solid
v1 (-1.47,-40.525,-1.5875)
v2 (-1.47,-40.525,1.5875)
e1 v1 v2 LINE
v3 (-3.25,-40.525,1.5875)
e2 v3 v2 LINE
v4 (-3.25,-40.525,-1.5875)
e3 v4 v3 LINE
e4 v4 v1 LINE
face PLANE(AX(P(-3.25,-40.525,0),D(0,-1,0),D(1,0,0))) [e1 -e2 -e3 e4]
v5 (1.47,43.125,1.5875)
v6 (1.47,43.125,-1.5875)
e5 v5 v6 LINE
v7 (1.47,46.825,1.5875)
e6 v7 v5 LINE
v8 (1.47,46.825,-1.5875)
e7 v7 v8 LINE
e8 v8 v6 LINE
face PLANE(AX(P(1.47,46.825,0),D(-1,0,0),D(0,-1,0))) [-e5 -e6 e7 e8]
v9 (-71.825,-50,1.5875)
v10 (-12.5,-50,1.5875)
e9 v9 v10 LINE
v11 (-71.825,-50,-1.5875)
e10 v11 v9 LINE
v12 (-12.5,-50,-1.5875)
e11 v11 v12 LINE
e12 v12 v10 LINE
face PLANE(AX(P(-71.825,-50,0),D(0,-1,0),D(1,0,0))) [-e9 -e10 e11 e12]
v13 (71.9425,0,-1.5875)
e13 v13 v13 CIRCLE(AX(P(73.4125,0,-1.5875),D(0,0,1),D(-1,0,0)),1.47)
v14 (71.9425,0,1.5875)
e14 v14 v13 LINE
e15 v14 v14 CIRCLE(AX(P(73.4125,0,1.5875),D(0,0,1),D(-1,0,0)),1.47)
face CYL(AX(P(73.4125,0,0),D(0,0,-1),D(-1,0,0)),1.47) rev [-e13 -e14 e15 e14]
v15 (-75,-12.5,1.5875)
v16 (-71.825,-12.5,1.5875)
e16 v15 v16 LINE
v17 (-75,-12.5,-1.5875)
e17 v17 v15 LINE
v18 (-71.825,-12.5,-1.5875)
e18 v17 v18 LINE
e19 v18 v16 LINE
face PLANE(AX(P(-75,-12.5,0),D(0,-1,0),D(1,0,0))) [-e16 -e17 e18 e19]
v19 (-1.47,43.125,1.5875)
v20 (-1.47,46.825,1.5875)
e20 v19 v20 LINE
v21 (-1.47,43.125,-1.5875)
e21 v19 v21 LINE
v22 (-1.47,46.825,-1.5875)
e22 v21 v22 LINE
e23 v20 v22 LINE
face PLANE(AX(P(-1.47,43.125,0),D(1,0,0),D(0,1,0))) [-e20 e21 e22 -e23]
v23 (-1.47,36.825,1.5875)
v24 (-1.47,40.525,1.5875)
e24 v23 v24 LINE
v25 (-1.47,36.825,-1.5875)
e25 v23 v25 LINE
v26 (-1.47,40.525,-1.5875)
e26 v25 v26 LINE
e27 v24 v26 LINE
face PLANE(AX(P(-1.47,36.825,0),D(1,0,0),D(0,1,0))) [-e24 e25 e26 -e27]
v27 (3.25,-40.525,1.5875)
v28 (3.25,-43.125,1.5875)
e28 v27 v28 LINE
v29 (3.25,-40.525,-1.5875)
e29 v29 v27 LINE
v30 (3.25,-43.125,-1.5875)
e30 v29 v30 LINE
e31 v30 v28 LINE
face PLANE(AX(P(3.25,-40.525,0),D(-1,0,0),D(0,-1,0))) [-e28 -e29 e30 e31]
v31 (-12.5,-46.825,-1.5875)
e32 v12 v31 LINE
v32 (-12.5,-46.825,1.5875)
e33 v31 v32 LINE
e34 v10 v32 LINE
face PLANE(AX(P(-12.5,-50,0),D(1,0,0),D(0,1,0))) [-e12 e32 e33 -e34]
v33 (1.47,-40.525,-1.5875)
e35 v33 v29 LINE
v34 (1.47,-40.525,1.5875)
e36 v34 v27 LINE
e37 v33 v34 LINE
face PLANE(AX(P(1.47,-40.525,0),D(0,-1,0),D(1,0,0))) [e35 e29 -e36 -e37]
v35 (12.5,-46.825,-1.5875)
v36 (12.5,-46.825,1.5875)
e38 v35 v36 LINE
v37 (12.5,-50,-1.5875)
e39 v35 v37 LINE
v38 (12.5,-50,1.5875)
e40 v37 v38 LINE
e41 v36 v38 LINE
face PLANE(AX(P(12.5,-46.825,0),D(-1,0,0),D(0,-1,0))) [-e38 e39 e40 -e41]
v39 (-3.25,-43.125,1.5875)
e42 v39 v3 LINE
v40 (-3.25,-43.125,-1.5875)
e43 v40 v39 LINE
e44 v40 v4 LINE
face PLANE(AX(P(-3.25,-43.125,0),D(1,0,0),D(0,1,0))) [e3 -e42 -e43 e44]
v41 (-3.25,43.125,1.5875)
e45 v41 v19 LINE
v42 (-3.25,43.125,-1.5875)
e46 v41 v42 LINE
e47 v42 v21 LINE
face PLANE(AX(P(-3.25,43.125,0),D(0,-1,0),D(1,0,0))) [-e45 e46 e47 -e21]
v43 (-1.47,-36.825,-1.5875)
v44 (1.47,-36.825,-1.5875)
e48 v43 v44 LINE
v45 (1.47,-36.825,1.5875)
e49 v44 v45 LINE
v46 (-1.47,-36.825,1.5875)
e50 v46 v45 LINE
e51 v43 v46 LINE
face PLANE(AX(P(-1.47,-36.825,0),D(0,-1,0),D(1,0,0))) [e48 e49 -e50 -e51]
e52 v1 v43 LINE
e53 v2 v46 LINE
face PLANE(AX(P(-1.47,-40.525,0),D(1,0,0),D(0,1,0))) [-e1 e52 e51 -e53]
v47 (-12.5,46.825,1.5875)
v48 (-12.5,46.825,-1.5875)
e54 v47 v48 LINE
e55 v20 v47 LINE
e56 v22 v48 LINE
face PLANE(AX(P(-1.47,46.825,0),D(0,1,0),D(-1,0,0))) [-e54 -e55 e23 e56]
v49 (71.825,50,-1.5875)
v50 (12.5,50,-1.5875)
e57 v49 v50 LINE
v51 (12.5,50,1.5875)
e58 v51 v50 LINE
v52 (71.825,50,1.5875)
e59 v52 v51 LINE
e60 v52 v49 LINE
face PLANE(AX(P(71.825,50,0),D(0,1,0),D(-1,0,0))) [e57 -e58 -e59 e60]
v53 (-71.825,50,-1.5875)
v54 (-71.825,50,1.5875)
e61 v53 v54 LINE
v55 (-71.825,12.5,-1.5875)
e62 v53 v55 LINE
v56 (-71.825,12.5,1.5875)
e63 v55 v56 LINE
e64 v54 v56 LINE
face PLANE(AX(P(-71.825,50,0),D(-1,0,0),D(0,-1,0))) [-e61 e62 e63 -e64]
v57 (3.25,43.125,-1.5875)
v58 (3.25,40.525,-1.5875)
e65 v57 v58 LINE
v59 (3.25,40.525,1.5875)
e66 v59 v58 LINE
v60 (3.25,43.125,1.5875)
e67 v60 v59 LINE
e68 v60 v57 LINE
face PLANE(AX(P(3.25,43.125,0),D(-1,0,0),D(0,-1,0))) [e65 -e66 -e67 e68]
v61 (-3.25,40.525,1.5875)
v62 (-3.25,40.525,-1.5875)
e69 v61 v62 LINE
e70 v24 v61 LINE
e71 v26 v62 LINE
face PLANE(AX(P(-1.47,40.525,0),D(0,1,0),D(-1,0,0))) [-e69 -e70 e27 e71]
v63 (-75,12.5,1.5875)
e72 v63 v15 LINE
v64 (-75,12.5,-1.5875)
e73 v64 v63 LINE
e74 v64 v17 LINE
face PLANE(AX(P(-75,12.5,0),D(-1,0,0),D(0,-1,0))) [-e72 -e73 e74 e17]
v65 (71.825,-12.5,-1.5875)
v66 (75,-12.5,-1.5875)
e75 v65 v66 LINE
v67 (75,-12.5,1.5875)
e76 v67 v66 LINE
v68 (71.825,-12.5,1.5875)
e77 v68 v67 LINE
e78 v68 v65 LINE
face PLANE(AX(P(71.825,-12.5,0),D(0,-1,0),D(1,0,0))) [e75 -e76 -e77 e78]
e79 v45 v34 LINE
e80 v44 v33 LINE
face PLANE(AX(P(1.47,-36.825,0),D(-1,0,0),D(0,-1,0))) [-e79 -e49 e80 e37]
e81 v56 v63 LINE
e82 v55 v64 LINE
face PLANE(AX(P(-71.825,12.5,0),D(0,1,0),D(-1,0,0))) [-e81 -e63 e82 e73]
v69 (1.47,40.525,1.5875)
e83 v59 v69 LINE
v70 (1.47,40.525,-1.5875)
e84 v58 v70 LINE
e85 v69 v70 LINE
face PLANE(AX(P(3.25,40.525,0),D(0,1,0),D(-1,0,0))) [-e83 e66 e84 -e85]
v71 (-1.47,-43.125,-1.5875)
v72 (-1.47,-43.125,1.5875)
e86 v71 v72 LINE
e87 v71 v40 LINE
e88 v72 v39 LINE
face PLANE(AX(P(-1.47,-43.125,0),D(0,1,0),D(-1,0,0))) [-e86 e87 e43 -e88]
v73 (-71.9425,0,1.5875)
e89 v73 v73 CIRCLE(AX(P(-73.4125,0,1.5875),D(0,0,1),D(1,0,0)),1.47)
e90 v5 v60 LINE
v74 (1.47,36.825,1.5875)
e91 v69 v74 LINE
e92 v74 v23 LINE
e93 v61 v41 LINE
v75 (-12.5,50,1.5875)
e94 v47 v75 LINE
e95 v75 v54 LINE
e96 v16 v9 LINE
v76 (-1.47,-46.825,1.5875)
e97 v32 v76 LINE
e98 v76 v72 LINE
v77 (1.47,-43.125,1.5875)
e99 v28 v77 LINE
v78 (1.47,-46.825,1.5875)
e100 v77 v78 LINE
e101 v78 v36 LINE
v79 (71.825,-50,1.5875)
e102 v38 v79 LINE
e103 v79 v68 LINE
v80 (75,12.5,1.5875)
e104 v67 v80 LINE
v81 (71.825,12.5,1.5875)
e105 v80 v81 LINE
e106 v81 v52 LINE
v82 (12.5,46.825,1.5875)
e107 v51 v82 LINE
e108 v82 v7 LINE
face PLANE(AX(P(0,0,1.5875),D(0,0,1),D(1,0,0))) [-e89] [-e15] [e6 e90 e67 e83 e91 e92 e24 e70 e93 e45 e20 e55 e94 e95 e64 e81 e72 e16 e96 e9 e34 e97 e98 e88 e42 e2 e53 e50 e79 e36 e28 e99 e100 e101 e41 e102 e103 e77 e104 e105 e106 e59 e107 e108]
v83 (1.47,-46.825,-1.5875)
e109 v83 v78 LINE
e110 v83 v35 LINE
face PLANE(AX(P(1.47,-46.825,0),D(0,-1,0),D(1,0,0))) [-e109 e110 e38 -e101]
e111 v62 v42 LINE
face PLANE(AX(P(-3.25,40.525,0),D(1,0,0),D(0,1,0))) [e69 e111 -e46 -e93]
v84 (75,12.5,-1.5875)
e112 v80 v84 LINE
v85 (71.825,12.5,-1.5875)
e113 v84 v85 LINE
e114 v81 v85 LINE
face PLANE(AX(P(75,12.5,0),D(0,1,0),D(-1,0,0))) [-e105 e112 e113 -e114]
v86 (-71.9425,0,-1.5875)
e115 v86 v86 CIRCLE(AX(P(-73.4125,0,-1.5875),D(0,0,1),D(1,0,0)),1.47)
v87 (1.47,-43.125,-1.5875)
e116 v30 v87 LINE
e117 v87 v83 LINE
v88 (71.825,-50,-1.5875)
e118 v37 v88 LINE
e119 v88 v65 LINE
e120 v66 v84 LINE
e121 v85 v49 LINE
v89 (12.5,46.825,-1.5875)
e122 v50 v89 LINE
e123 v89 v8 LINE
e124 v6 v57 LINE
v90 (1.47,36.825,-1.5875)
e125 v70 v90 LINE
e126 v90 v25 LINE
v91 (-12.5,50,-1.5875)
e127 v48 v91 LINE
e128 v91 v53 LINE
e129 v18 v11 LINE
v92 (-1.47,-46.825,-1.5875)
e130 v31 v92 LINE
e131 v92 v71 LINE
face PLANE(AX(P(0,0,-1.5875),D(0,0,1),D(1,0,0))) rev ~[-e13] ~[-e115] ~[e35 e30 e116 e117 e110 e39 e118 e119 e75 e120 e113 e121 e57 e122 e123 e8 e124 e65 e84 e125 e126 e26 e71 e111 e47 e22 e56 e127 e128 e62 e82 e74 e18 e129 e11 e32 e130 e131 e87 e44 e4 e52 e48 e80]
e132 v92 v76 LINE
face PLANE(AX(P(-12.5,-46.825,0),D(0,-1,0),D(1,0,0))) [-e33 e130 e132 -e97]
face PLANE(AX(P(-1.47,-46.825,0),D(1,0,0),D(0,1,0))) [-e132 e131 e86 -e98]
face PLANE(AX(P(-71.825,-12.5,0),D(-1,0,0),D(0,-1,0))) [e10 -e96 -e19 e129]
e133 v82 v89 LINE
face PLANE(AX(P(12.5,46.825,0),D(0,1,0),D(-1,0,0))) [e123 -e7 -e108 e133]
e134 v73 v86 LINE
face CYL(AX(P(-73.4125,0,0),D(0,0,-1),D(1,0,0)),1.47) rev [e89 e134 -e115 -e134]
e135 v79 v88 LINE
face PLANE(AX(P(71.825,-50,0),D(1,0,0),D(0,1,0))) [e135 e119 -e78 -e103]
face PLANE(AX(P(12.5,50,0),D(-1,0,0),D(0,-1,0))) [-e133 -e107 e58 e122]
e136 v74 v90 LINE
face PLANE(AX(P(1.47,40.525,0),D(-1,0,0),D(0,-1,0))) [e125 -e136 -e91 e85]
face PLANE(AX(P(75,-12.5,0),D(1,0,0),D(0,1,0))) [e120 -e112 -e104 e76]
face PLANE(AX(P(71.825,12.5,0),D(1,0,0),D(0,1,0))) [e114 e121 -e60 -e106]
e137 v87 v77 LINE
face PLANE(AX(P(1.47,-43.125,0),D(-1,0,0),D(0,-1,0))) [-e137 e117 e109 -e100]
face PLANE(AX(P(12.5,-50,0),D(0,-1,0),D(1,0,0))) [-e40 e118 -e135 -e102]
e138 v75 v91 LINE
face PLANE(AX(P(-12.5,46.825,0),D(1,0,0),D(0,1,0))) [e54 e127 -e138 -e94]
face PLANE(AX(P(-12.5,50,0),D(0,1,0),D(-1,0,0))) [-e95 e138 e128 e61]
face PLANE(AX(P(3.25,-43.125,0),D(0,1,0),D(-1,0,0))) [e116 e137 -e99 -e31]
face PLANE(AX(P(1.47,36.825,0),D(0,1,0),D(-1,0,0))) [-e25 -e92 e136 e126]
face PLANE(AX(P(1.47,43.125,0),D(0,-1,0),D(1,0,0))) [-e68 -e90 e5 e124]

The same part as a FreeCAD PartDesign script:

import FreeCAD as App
import Part
import Sketcher

V = App.Vector
Q = App.Units.Quantity


def add_polygon(sketch, points):
    """Adds a closed chain of lines whose ends are joined by coincident constraints."""
    first, n = sketch.GeometryCount, len(points)
    for a, b in zip(points, points[1:] + points[:1]):
        sketch.addGeometry(Part.LineSegment(App.Vector(*a, 0), App.Vector(*b, 0)), False)
    for i in range(n):
        sketch.addConstraint(Sketcher.Constraint("Coincident", first + i, 2, first + (i + 1) % n, 1))

doc = App.newDocument("Part")
body = doc.addObject("PartDesign::Body", "Body")

sketch1 = body.newObject("Sketcher::SketchObject", "Sketch")
sketch1.AttachmentSupport = (doc.getObject("XY_Plane"), [""])
sketch1.MapMode = "FlatFace"
add_polygon(sketch1, [(-12.5, 50), (-71.825, 50), (-71.825, 12.5), (-75, 12.5), (-75, -12.5), (-71.825, -12.5), (-71.825, -50), (-12.5, -50), (-12.5, -46.825), (-1.47, -46.825), (-1.47, -43.125), (-3.25, -43.125), (-3.25, -40.525), (-1.47, -40.525), (-1.47, -36.825), (1.47, -36.825), (1.47, -40.525), (3.25, -40.525), (3.25, -43.125), (1.47, -43.125), (1.47, -46.825), (12.5, -46.825), (12.5, -50), (71.825, -50), (71.825, -12.5), (75, -12.5), (75, 12.5), (71.825, 12.5), (71.825, 50), (12.5, 50), (12.5, 46.825), (1.47, 46.825), (1.47, 43.125), (3.25, 43.125), (3.25, 40.525), (1.47, 40.525), (1.47, 36.825), (-1.47, 36.825), (-1.47, 40.525), (-3.25, 40.525), (-3.25, 43.125), (-1.47, 43.125), (-1.47, 46.825), (-12.5, 46.825)])
sketch1.addGeometry(Part.Circle(V(-73.4125, 0, 0), V(0, 0, 1), 1.47), False)
sketch1.addGeometry(Part.Circle(V(73.4125, 0, 0), V(0, 0, 1), 1.47), False)
sketch1.addConstraint([
    Sketcher.Constraint("Horizontal", 0),
    Sketcher.Constraint("Vertical", 1),
    Sketcher.Constraint("Horizontal", 2),
    Sketcher.Constraint("Vertical", 3),
    Sketcher.Constraint("Horizontal", 4),
    Sketcher.Constraint("Vertical", 5),
    Sketcher.Constraint("Horizontal", 6),
    Sketcher.Constraint("Vertical", 7),
    Sketcher.Constraint("Horizontal", 8),
    Sketcher.Constraint("Vertical", 9),
    Sketcher.Constraint("Horizontal", 10),
    Sketcher.Constraint("Vertical", 11),
    Sketcher.Constraint("Horizontal", 12),
    Sketcher.Constraint("Vertical", 13),
    Sketcher.Constraint("Horizontal", 14),
    Sketcher.Constraint("Vertical", 15),
    Sketcher.Constraint("Horizontal", 16),
    Sketcher.Constraint("Vertical", 17),
    Sketcher.Constraint("Horizontal", 18),
    Sketcher.Constraint("Vertical", 19),
    Sketcher.Constraint("Horizontal", 20),
    Sketcher.Constraint("Vertical", 21),
    Sketcher.Constraint("Horizontal", 22),
    Sketcher.Constraint("Vertical", 23),
    Sketcher.Constraint("Horizontal", 24),
    Sketcher.Constraint("Vertical", 25),
    Sketcher.Constraint("Horizontal", 26),
    Sketcher.Constraint("Vertical", 27),
    Sketcher.Constraint("Horizontal", 28),
    Sketcher.Constraint("Vertical", 29),
    Sketcher.Constraint("Horizontal", 30),
    Sketcher.Constraint("Vertical", 31),
    Sketcher.Constraint("Horizontal", 32),
    Sketcher.Constraint("Vertical", 33),
    Sketcher.Constraint("Horizontal", 34),
    Sketcher.Constraint("Vertical", 35),
    Sketcher.Constraint("Horizontal", 36),
    Sketcher.Constraint("Vertical", 37),
    Sketcher.Constraint("Horizontal", 38),
    Sketcher.Constraint("Vertical", 39),
    Sketcher.Constraint("Horizontal", 40),
    Sketcher.Constraint("Vertical", 41),
    Sketcher.Constraint("Horizontal", 42),
    Sketcher.Constraint("Vertical", 43),
    Sketcher.Constraint("Equal", 44, 45),
    Sketcher.Constraint("Symmetric", 44, 3, 45, 3, -1, 1),
    Sketcher.Constraint("Symmetric", 0, 2, 22, 2, -1, 1),
    Sketcher.Constraint("Symmetric", 2, 2, 24, 2, -1, 1),
    Sketcher.Constraint("Symmetric", 4, 2, 26, 2, -1, 1),
    Sketcher.Constraint("Symmetric", 6, 2, 28, 2, -1, 1),
    Sketcher.Constraint("Symmetric", 8, 2, 30, 2, -1, 1),
    Sketcher.Constraint("Symmetric", 10, 2, 32, 2, -1, 1),
    Sketcher.Constraint("Symmetric", 12, 2, 34, 2, -1, 1),
    Sketcher.Constraint("Symmetric", 14, 2, 36, 2, -1, 1),
    Sketcher.Constraint("Symmetric", 16, 2, 38, 2, -1, 1),
    Sketcher.Constraint("Symmetric", 18, 2, 40, 2, -1, 1),
    Sketcher.Constraint("Symmetric", 20, 2, 42, 2, -1, 1),
    Sketcher.Constraint("Symmetric", 12, 2, 15, 2, -2),
    Sketcher.Constraint("Symmetric", 10, 2, 17, 2, -2),
    Sketcher.Constraint("Symmetric", 8, 2, 19, 2, -2),
    Sketcher.Constraint("Symmetric", 6, 2, 21, 2, -2),
    Sketcher.Constraint("Symmetric", 4, 2, 23, 2, -2),
    Sketcher.Constraint("PointOnObject", 44, 3, -1),
    Sketcher.Constraint("Vertical", 9, 2, 12, 2),
    Sketcher.Constraint("Equal", 26, 7),
    Sketcher.Constraint("Equal", 9, 13),
    Sketcher.Constraint("Diameter", 44, Q("2.94 mm")),
    Sketcher.Constraint("DistanceY", 3, 2, 3, 1, Q("25 mm")),
    Sketcher.Constraint("DistanceY", 1, 2, 1, 1, Q("37.5 mm")),
    Sketcher.Constraint("DistanceY", 9, 1, 9, 2, Q("3.7 mm")),
    Sketcher.Constraint("DistanceY", 11, 1, 11, 2, Q("2.6 mm")),
    Sketcher.Constraint("DistanceX", 2, 2, -1, 1, Q("75 mm")),
    Sketcher.Constraint("DistanceX", 8, 1, 8, 2, Q("11.03 mm")),
    Sketcher.Constraint("DistanceX", 10, 2, 10, 1, Q("1.78 mm")),
    Sketcher.Constraint("DistanceX", 14, 1, 14, 2, Q("2.94 mm")),
    Sketcher.Constraint("DistanceX", 0, 2, 0, 1, Q("59.325 mm")),
    Sketcher.Constraint("DistanceX", 44, 3, 45, 3, Q("146.825 mm")),
])
pad1 = body.newObject("PartDesign::Pad", "Pad")
pad1.Profile = sketch1
pad1.Length = 3.175
pad1.Midplane = True

doc.recompute()
